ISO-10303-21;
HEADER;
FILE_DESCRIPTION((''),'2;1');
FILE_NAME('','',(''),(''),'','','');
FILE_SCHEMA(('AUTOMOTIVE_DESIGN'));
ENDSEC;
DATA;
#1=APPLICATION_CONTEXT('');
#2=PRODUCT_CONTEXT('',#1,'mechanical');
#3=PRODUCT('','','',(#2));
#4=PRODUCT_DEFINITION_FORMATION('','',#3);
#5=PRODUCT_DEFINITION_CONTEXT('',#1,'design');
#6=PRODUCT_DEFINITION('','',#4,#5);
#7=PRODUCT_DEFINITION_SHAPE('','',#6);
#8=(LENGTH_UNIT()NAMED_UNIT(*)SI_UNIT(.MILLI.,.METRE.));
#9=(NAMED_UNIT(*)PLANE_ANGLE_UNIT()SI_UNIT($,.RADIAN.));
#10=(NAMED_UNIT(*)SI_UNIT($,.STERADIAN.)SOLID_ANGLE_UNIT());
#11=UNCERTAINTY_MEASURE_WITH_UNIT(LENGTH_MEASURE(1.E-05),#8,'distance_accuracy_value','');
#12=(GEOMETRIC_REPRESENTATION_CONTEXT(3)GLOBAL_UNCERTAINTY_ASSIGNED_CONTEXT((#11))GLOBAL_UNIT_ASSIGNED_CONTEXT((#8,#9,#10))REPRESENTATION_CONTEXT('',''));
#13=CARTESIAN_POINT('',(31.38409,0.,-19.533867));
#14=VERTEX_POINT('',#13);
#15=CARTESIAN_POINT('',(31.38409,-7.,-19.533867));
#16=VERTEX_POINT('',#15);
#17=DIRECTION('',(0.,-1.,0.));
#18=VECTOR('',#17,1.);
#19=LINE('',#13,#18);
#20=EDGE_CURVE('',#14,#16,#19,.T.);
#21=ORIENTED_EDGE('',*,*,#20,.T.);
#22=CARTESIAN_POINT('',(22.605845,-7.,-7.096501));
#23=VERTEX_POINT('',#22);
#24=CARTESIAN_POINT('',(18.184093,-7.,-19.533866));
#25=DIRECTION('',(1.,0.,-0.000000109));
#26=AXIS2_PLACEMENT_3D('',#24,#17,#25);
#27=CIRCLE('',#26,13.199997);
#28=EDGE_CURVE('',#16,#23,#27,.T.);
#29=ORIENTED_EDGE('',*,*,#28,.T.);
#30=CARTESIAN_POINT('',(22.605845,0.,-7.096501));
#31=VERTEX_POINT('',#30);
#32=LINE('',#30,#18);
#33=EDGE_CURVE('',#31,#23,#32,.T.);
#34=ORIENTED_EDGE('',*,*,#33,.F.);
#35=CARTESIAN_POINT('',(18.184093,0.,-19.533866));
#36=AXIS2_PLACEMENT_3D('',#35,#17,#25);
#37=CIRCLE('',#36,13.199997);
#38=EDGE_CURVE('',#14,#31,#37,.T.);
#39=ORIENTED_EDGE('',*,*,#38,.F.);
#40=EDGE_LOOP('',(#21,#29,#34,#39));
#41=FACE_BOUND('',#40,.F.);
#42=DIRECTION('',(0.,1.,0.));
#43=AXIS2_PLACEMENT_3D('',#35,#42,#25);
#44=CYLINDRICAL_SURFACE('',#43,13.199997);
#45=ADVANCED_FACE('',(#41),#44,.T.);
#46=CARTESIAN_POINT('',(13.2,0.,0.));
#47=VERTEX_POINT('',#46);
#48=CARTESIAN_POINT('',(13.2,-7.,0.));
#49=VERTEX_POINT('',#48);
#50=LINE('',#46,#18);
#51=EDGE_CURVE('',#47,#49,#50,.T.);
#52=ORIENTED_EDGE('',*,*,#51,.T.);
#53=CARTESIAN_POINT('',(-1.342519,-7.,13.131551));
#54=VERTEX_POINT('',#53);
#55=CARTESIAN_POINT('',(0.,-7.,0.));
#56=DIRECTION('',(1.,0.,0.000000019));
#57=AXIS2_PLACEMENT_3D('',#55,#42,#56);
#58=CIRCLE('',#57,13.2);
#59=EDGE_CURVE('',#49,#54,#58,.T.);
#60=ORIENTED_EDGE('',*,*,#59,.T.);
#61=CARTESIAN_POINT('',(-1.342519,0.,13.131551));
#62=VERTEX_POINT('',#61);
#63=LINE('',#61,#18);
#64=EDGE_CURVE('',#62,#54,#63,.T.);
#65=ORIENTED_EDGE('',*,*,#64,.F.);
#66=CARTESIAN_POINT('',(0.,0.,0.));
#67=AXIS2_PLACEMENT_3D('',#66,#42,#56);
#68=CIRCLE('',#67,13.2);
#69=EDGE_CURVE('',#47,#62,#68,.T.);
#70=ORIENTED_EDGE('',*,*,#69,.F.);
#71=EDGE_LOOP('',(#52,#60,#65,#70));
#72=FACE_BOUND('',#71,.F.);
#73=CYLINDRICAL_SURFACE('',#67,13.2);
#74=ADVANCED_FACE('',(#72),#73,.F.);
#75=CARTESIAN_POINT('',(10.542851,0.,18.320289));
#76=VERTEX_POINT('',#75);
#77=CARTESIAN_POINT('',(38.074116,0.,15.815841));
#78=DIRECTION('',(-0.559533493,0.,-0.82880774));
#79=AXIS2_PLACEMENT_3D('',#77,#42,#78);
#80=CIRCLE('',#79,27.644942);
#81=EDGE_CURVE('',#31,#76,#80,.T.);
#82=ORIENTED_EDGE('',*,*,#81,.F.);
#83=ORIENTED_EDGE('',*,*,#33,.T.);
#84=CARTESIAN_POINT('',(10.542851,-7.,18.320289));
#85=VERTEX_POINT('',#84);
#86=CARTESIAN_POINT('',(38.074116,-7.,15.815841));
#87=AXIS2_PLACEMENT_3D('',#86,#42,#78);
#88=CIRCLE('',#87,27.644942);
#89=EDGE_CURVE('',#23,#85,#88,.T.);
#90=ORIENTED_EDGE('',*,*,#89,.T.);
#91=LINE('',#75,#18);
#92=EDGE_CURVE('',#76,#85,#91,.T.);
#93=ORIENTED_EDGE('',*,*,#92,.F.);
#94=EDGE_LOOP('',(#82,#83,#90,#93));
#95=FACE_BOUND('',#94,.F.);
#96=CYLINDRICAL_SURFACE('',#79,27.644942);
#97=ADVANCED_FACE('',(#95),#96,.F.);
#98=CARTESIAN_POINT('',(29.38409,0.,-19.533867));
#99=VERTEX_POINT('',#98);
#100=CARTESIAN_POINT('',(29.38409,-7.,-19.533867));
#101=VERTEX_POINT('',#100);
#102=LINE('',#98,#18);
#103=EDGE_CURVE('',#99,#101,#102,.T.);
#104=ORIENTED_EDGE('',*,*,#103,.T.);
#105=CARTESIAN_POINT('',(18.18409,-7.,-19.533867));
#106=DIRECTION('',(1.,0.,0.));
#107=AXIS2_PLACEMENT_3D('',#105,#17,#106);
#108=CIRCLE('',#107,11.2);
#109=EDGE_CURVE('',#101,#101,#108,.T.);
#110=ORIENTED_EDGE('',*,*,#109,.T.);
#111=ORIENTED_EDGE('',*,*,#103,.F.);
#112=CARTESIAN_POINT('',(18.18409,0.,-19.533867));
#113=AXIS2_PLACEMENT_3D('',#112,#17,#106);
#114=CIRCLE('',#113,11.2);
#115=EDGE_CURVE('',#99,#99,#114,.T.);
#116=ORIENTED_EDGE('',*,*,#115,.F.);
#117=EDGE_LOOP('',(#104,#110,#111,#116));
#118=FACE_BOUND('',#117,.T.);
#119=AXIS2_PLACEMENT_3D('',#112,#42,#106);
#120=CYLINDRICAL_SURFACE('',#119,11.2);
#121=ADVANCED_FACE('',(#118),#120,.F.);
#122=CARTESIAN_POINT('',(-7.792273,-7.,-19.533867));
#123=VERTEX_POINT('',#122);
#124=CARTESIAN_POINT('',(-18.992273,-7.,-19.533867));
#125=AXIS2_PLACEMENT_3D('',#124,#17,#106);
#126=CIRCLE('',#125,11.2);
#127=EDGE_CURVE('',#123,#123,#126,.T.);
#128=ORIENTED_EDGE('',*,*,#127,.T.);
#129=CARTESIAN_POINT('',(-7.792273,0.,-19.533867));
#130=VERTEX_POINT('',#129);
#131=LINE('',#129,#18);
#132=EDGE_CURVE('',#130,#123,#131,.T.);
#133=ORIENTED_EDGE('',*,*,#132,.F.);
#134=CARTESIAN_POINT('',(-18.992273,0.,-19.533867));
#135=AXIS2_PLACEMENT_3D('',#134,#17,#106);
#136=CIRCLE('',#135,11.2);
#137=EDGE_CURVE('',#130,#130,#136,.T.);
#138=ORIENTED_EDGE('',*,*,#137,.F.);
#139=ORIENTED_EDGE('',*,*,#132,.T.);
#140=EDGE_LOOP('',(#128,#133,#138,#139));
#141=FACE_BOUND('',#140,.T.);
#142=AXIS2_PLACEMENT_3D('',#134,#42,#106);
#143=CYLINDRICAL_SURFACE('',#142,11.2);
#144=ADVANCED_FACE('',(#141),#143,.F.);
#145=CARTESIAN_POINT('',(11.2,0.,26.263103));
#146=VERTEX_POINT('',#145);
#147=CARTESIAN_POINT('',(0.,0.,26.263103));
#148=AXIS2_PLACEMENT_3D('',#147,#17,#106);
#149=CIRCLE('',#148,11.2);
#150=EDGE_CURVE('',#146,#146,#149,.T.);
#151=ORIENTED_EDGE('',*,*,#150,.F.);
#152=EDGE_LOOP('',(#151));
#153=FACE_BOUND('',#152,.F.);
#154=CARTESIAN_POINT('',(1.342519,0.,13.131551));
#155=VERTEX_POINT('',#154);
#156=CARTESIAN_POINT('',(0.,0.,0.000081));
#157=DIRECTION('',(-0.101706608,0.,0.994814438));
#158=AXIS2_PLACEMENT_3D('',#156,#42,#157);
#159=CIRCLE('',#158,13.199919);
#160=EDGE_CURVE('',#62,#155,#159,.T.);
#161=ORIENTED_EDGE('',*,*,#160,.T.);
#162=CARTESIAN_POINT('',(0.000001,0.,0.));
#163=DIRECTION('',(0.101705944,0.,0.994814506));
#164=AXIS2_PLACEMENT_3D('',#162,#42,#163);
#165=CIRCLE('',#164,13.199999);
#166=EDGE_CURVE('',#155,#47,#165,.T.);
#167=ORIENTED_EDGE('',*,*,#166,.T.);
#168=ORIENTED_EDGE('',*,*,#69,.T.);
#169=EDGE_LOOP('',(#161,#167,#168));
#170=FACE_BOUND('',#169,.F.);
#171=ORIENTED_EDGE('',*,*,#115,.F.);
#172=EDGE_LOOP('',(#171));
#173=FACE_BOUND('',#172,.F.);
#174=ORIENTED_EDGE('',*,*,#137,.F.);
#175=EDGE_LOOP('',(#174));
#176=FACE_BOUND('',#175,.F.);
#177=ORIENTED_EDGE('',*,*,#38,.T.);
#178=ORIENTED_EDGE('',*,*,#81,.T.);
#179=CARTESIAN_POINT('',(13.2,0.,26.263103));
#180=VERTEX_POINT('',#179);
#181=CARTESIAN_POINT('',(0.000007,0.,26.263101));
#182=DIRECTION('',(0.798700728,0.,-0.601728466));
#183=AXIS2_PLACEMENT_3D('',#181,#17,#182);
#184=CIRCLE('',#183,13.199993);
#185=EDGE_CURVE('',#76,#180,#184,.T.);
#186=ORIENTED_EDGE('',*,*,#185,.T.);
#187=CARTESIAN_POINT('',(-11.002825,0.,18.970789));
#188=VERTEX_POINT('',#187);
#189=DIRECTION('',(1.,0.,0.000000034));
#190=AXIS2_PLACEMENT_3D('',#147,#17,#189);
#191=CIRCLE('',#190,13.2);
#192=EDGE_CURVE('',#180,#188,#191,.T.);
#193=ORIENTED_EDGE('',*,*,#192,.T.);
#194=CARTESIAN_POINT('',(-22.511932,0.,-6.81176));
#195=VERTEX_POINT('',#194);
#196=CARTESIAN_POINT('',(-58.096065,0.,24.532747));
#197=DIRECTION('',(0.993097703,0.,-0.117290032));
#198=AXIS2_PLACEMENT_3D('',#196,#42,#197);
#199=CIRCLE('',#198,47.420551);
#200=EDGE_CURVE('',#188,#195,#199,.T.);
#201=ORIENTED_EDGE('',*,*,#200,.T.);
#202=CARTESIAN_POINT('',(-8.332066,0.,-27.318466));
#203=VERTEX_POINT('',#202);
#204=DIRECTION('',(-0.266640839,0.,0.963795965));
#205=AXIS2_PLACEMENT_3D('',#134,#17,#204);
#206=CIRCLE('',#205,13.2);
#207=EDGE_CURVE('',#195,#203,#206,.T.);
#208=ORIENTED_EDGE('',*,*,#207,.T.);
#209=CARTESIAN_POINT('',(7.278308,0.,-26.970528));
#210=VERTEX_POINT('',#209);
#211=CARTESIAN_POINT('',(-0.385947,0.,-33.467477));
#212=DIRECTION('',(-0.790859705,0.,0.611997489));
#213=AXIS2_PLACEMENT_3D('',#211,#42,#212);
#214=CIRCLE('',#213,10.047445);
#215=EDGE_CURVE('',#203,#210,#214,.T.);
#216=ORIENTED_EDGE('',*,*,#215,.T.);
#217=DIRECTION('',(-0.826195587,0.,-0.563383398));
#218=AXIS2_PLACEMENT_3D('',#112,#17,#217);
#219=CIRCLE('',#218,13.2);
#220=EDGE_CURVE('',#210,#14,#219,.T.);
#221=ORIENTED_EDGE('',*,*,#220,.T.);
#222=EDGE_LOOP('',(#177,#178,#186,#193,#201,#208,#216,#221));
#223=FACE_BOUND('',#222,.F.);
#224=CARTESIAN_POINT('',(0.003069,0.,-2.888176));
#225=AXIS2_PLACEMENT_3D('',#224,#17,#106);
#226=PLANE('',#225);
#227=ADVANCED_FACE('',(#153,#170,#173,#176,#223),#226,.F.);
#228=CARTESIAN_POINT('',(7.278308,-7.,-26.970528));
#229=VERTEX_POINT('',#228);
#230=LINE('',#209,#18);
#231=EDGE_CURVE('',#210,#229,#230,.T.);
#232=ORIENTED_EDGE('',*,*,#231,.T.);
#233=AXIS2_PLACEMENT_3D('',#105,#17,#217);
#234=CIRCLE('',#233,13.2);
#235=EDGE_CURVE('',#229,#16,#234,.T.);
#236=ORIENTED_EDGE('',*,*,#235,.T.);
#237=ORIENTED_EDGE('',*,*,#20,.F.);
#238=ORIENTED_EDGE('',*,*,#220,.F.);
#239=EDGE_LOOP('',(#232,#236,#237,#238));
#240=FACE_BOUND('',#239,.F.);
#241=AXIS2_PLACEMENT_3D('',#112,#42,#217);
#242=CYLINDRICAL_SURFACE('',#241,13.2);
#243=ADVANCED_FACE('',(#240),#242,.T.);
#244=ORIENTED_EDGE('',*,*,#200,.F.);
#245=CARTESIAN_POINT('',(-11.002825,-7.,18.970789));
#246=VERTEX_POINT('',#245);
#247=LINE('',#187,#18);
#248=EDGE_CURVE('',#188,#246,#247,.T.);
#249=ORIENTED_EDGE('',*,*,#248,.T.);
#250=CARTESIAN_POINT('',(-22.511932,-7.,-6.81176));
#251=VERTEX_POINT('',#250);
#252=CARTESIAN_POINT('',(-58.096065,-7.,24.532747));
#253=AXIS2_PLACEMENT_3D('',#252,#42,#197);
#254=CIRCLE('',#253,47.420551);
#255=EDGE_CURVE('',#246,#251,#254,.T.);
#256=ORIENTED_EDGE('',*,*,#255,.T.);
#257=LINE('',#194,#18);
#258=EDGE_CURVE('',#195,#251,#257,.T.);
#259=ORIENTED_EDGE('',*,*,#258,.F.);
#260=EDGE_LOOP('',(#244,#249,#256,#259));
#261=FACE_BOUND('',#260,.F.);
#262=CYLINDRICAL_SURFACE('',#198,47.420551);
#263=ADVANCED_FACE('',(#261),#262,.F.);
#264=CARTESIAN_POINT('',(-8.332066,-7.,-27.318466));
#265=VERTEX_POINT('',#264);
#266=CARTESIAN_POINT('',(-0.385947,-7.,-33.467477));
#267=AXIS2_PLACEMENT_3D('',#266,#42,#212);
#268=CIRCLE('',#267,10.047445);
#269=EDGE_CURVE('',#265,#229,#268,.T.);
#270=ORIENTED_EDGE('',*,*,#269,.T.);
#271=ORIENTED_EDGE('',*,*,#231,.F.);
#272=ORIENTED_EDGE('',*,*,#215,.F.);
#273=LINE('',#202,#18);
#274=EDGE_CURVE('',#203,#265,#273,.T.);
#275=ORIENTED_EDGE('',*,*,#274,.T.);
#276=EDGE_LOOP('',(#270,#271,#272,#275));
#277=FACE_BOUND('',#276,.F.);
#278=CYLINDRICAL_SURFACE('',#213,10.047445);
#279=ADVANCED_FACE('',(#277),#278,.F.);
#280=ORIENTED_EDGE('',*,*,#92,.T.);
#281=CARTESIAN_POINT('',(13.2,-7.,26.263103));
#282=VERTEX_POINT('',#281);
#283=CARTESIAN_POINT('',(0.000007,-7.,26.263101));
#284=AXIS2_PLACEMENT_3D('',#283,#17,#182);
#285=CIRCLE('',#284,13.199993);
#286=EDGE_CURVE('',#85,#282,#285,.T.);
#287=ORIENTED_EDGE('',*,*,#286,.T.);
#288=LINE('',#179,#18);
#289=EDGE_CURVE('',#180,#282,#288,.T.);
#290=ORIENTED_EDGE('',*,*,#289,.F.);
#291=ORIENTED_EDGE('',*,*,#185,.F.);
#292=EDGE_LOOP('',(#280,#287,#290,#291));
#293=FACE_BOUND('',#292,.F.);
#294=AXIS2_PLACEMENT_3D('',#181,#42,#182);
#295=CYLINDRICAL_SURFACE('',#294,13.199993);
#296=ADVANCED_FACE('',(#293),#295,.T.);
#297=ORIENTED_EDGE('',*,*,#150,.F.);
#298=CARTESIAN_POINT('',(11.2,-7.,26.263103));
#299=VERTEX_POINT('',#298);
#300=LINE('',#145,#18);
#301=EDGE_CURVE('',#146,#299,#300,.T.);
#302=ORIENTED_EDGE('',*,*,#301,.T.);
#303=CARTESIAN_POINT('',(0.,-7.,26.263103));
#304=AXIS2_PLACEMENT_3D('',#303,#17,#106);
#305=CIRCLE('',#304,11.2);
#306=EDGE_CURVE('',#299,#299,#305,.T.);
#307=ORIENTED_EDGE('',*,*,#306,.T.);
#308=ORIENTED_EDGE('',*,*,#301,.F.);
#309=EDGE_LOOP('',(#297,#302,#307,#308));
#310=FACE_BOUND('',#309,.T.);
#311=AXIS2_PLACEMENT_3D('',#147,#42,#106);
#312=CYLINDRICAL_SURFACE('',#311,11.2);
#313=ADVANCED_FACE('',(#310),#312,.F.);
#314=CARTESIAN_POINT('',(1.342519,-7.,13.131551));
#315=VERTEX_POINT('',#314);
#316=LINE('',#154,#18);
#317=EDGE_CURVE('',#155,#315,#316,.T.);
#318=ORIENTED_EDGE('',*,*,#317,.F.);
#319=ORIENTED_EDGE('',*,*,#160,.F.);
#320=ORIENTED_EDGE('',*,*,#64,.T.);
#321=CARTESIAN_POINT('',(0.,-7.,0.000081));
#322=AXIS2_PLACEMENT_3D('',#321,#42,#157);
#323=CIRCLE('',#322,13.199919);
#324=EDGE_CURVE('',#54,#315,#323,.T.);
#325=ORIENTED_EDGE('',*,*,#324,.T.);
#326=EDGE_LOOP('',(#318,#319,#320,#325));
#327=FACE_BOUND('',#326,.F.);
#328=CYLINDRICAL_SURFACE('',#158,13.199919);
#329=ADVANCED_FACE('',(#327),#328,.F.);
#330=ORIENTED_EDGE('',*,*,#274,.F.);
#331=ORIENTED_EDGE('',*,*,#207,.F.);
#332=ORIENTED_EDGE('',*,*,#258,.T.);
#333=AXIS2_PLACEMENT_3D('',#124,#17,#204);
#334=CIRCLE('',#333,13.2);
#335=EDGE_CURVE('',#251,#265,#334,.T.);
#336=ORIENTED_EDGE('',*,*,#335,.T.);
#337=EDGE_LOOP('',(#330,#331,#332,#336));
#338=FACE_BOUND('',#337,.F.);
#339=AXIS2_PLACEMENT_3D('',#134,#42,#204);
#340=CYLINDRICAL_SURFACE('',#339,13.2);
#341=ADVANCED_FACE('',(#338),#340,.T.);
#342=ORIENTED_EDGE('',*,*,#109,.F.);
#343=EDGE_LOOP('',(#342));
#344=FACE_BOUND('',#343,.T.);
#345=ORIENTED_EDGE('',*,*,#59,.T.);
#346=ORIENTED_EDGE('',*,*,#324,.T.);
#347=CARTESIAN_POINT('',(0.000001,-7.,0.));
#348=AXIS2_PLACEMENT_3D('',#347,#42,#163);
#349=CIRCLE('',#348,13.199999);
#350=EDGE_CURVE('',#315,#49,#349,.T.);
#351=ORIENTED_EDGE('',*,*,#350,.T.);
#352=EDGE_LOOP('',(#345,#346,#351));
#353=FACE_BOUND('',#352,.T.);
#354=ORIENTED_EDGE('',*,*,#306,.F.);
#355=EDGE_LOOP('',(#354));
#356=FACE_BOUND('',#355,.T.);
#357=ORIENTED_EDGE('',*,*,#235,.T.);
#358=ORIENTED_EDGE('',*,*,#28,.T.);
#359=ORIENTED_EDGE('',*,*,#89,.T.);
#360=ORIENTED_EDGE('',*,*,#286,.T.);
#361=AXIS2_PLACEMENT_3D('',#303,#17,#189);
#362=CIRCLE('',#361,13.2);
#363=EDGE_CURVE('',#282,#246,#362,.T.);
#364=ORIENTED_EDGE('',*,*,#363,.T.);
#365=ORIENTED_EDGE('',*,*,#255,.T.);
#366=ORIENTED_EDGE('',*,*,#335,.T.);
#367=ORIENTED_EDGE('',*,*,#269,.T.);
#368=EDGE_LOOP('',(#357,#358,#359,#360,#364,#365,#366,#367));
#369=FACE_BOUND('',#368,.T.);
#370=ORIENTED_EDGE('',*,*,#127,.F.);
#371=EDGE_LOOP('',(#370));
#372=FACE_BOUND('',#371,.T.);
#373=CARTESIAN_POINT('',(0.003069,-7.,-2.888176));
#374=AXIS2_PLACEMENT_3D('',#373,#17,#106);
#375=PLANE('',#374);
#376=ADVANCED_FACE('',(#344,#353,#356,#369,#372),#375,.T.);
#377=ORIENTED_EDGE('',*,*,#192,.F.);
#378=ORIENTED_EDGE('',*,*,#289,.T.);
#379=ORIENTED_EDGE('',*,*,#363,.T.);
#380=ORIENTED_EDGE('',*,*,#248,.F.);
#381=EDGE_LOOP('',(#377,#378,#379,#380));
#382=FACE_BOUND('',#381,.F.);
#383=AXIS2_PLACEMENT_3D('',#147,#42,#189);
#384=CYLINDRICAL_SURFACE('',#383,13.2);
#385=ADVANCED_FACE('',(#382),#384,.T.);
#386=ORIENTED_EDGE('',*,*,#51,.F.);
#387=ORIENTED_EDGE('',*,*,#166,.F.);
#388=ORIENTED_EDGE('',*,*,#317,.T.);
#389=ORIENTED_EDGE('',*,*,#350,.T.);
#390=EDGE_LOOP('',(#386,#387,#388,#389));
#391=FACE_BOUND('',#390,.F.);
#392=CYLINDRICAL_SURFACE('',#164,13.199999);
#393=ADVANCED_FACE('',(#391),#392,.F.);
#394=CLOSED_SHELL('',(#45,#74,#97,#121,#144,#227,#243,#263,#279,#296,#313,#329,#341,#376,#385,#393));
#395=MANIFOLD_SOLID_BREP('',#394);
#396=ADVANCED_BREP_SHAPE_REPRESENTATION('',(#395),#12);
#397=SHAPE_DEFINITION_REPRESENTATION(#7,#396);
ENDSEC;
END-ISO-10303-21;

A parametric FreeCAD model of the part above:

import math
import FreeCAD as App
import Part
import Sketcher
Q = App.Units.Quantity

doc = App.newDocument("Part")
params = doc.addObject("Spreadsheet::Sheet", "Params")
for row, (alias, value) in enumerate([
    ("sketch1_diameter", "22.4 mm"),
    ("sketch1_diameter2", "22.4 mm"),
    ("sketch1_diameter3", "22.4 mm"),
    ("sketch1_radius", "13.2 mm"),
    ("sketch1_radius2", "13.2 mm"),
    ("pad1_length", "7 mm"),
], start=1):
    params.set(f"A{row}", alias)
    params.set(f"B{row}", "=" + value)
    params.setAlias(f"B{row}", alias)

body = doc.addObject("PartDesign::Body", "Body")

sketch1 = doc.addObject("Sketcher::SketchObject", "Sketch")
body.addObject(sketch1)
sketch1.AttachmentSupport = (doc.XZ_Plane, [""])
sketch1.MapMode = "FlatFace"
sketch1.addGeometry([
    Part.ArcOfCircle(Part.Circle(App.Vector(-58.096065, 24.532747, 0), App.Vector(0, 0, 1), 47.420551), math.radians(-41.375415), math.radians(-6.735728)),
    Part.ArcOfCircle(Part.Circle(App.Vector(-18.992273, -19.533867, 0), App.Vector(0, 0, 1), 13.2), math.radians(105.464475), math.radians(323.861272)),
    Part.ArcOfCircle(Part.Circle(App.Vector(-0.385947, -33.467477, 0), App.Vector(0, 0, 1), 10.047445), math.radians(40.287771), math.radians(142.265925)),
    Part.ArcOfCircle(Part.Circle(App.Vector(18.18409, -19.533867, 0), App.Vector(0, 0, 1), 13.2), math.radians(-145.709893), math.radians(0)),
    Part.ArcOfCircle(Part.Circle(App.Vector(18.184093, -19.533866, 0), App.Vector(0, 0, 1), 13.199997), math.radians(-0.000006), math.radians(70.428599)),
    Part.ArcOfCircle(Part.Circle(App.Vector(38.074116, 15.815841, 0), App.Vector(0, 0, 1), 27.644942), math.radians(174.802256), math.radians(235.976458)),
    Part.ArcOfCircle(Part.Circle(App.Vector(0.000007, 26.263101, 0), App.Vector(0, 0, 1), 13.199993), math.radians(-36.99379), math.radians(0.00001)),
    Part.ArcOfCircle(Part.Circle(App.Vector(0, 26.263103, 0), App.Vector(0, 0, 1), 13.2), math.radians(0.000002), math.radians(213.535119)),
    Part.Circle(App.Vector(-18.992273, -19.533867, 0), App.Vector(0, 0, 1), 11.2),
    Part.Circle(App.Vector(18.18409, -19.533867, 0), App.Vector(0, 0, 1), 11.2),
    Part.ArcOfCircle(Part.Circle(App.Vector(0.000001, 0, 0), App.Vector(0, 0, 1), 13.199999), math.radians(-0.000001), math.radians(84.162585)),
    Part.ArcOfCircle(Part.Circle(App.Vector(0, 0, 0), App.Vector(0, 0, 1), 13.2), math.radians(95.837418), math.radians(360.000001)),
    Part.ArcOfCircle(Part.Circle(App.Vector(0, 0.000081, 0), App.Vector(0, 0, 1), 13.199919), math.radians(84.162547), math.radians(95.837453)),
    Part.Circle(App.Vector(0, 26.263103, 0), App.Vector(0, 0, 1), 11.2),
], False)
sketch1.addConstraint([
    Sketcher.Constraint("Coincident", 0, 1, 1, 1),
    Sketcher.Constraint("Coincident", 1, 2, 2, 2),
    Sketcher.Constraint("Coincident", 2, 1, 3, 1),
    Sketcher.Constraint("Coincident", 3, 2, 4, 1),
    Sketcher.Constraint("Coincident", 4, 2, 5, 2),
    Sketcher.Constraint("Coincident", 5, 1, 6, 1),
    Sketcher.Constraint("Coincident", 6, 2, 7, 1),
    Sketcher.Constraint("Coincident", 7, 2, 0, 2),
    Sketcher.Constraint("Coincident", 10, 1, 11, 2),
    Sketcher.Constraint("Coincident", 11, 1, 12, 2),
    Sketcher.Constraint("Coincident", 12, 1, 10, 2),
    Sketcher.Constraint("Coincident", 10, 3, -1, 1),
    Sketcher.Constraint("Coincident", 11, 3, -1, 1),
    Sketcher.Constraint("Coincident", 4, 3, 3, 3),
    Sketcher.Constraint("Coincident", 7, 3, 6, 3),
    Sketcher.Constraint("Coincident", 8, 3, 1, 3),
    Sketcher.Constraint("Coincident", 9, 3, 3, 3),
    Sketcher.Constraint("Coincident", 13, 3, 6, 3),
    Sketcher.Constraint("PointOnObject", 7, 3, -2),
    Sketcher.Constraint("PointOnObject", 10, 1, -1),
    Sketcher.Constraint("Diameter", 8, Q("22.4 mm")),
    Sketcher.Constraint("Diameter", 9, Q("22.4 mm")),
    Sketcher.Constraint("Diameter", 13, Q("22.4 mm")),
    Sketcher.Constraint("Radius", 1, Q("13.2 mm")),
    Sketcher.Constraint("Radius", 3, Q("13.2 mm")),
    Sketcher.Constraint("Radius", 7, Q("13.2 mm")),
    Sketcher.Constraint("Radius", 10, Q("13.199999 mm")),
    Sketcher.Constraint("Radius", 0, Q("47.420551 mm")),
    Sketcher.Constraint("Radius", 5, Q("27.644942 mm")),
    Sketcher.Constraint("Radius", 12, Q("13.199919 mm")),
    Sketcher.Constraint("Radius", 2, Q("10.047445 mm")),
    Sketcher.Constraint("DistanceY", -1, 1, 6, 3, Q("26.263101 mm")),
    Sketcher.Constraint("DistanceY", 4, 2, -1, 1, Q("7.096501 mm")),
    Sketcher.Constraint("DistanceY", 1, 2, 8, 3, Q("7.784599 mm")),
    Sketcher.Constraint("DistanceY", 1, 2, 3, 3, Q("7.784599 mm")),
    Sketcher.Constraint("DistanceY", 5, 1, 7, 2, Q("0.6505 mm")),
    Sketcher.Constraint("DistanceX", -1, 1, 3, 3, Q("18.18409 mm")),
    Sketcher.Constraint("DistanceY", -1, 1, 5, 3, Q("15.815841 mm")),
    Sketcher.Constraint("DistanceY", 0, 1, -1, 1, Q("6.81176 mm")),
    Sketcher.Constraint("DistanceY", 2, 1, -1, 1, Q("26.970528 mm")),
    Sketcher.Constraint("DistanceX", -1, 1, 5, 1, Q("10.542851 mm")),
    Sketcher.Constraint("DistanceX", 11, 1, -1, 1, Q("1.342519 mm")),
    Sketcher.Constraint("DistanceX", -1, 1, 12, 1, Q("1.342519 mm")),
    Sketcher.Constraint("DistanceY", 2, 3, 1, 3, Q("13.93361 mm")),
    Sketcher.Constraint("DistanceY", 2, 1, 3, 2, Q("7.436661 mm")),
    Sketcher.Constraint("DistanceY", -1, 1, 6, 2, Q("26.263103 mm")),
])
sketch1.setExpression("Constraints[20]", "Params.sketch1_diameter")
sketch1.setExpression("Constraints[21]", "Params.sketch1_diameter2")
sketch1.setExpression("Constraints[22]", "Params.sketch1_diameter3")
sketch1.setExpression("Constraints[23]", "Params.sketch1_radius")
sketch1.setExpression("Constraints[24]", "Params.sketch1_radius2")
pad1 = doc.addObject("PartDesign::Pad", "Pad")
body.addObject(pad1)
pad1.Profile = sketch1
pad1.setExpression("Length", "Params.pad1_length")

doc.recompute()
